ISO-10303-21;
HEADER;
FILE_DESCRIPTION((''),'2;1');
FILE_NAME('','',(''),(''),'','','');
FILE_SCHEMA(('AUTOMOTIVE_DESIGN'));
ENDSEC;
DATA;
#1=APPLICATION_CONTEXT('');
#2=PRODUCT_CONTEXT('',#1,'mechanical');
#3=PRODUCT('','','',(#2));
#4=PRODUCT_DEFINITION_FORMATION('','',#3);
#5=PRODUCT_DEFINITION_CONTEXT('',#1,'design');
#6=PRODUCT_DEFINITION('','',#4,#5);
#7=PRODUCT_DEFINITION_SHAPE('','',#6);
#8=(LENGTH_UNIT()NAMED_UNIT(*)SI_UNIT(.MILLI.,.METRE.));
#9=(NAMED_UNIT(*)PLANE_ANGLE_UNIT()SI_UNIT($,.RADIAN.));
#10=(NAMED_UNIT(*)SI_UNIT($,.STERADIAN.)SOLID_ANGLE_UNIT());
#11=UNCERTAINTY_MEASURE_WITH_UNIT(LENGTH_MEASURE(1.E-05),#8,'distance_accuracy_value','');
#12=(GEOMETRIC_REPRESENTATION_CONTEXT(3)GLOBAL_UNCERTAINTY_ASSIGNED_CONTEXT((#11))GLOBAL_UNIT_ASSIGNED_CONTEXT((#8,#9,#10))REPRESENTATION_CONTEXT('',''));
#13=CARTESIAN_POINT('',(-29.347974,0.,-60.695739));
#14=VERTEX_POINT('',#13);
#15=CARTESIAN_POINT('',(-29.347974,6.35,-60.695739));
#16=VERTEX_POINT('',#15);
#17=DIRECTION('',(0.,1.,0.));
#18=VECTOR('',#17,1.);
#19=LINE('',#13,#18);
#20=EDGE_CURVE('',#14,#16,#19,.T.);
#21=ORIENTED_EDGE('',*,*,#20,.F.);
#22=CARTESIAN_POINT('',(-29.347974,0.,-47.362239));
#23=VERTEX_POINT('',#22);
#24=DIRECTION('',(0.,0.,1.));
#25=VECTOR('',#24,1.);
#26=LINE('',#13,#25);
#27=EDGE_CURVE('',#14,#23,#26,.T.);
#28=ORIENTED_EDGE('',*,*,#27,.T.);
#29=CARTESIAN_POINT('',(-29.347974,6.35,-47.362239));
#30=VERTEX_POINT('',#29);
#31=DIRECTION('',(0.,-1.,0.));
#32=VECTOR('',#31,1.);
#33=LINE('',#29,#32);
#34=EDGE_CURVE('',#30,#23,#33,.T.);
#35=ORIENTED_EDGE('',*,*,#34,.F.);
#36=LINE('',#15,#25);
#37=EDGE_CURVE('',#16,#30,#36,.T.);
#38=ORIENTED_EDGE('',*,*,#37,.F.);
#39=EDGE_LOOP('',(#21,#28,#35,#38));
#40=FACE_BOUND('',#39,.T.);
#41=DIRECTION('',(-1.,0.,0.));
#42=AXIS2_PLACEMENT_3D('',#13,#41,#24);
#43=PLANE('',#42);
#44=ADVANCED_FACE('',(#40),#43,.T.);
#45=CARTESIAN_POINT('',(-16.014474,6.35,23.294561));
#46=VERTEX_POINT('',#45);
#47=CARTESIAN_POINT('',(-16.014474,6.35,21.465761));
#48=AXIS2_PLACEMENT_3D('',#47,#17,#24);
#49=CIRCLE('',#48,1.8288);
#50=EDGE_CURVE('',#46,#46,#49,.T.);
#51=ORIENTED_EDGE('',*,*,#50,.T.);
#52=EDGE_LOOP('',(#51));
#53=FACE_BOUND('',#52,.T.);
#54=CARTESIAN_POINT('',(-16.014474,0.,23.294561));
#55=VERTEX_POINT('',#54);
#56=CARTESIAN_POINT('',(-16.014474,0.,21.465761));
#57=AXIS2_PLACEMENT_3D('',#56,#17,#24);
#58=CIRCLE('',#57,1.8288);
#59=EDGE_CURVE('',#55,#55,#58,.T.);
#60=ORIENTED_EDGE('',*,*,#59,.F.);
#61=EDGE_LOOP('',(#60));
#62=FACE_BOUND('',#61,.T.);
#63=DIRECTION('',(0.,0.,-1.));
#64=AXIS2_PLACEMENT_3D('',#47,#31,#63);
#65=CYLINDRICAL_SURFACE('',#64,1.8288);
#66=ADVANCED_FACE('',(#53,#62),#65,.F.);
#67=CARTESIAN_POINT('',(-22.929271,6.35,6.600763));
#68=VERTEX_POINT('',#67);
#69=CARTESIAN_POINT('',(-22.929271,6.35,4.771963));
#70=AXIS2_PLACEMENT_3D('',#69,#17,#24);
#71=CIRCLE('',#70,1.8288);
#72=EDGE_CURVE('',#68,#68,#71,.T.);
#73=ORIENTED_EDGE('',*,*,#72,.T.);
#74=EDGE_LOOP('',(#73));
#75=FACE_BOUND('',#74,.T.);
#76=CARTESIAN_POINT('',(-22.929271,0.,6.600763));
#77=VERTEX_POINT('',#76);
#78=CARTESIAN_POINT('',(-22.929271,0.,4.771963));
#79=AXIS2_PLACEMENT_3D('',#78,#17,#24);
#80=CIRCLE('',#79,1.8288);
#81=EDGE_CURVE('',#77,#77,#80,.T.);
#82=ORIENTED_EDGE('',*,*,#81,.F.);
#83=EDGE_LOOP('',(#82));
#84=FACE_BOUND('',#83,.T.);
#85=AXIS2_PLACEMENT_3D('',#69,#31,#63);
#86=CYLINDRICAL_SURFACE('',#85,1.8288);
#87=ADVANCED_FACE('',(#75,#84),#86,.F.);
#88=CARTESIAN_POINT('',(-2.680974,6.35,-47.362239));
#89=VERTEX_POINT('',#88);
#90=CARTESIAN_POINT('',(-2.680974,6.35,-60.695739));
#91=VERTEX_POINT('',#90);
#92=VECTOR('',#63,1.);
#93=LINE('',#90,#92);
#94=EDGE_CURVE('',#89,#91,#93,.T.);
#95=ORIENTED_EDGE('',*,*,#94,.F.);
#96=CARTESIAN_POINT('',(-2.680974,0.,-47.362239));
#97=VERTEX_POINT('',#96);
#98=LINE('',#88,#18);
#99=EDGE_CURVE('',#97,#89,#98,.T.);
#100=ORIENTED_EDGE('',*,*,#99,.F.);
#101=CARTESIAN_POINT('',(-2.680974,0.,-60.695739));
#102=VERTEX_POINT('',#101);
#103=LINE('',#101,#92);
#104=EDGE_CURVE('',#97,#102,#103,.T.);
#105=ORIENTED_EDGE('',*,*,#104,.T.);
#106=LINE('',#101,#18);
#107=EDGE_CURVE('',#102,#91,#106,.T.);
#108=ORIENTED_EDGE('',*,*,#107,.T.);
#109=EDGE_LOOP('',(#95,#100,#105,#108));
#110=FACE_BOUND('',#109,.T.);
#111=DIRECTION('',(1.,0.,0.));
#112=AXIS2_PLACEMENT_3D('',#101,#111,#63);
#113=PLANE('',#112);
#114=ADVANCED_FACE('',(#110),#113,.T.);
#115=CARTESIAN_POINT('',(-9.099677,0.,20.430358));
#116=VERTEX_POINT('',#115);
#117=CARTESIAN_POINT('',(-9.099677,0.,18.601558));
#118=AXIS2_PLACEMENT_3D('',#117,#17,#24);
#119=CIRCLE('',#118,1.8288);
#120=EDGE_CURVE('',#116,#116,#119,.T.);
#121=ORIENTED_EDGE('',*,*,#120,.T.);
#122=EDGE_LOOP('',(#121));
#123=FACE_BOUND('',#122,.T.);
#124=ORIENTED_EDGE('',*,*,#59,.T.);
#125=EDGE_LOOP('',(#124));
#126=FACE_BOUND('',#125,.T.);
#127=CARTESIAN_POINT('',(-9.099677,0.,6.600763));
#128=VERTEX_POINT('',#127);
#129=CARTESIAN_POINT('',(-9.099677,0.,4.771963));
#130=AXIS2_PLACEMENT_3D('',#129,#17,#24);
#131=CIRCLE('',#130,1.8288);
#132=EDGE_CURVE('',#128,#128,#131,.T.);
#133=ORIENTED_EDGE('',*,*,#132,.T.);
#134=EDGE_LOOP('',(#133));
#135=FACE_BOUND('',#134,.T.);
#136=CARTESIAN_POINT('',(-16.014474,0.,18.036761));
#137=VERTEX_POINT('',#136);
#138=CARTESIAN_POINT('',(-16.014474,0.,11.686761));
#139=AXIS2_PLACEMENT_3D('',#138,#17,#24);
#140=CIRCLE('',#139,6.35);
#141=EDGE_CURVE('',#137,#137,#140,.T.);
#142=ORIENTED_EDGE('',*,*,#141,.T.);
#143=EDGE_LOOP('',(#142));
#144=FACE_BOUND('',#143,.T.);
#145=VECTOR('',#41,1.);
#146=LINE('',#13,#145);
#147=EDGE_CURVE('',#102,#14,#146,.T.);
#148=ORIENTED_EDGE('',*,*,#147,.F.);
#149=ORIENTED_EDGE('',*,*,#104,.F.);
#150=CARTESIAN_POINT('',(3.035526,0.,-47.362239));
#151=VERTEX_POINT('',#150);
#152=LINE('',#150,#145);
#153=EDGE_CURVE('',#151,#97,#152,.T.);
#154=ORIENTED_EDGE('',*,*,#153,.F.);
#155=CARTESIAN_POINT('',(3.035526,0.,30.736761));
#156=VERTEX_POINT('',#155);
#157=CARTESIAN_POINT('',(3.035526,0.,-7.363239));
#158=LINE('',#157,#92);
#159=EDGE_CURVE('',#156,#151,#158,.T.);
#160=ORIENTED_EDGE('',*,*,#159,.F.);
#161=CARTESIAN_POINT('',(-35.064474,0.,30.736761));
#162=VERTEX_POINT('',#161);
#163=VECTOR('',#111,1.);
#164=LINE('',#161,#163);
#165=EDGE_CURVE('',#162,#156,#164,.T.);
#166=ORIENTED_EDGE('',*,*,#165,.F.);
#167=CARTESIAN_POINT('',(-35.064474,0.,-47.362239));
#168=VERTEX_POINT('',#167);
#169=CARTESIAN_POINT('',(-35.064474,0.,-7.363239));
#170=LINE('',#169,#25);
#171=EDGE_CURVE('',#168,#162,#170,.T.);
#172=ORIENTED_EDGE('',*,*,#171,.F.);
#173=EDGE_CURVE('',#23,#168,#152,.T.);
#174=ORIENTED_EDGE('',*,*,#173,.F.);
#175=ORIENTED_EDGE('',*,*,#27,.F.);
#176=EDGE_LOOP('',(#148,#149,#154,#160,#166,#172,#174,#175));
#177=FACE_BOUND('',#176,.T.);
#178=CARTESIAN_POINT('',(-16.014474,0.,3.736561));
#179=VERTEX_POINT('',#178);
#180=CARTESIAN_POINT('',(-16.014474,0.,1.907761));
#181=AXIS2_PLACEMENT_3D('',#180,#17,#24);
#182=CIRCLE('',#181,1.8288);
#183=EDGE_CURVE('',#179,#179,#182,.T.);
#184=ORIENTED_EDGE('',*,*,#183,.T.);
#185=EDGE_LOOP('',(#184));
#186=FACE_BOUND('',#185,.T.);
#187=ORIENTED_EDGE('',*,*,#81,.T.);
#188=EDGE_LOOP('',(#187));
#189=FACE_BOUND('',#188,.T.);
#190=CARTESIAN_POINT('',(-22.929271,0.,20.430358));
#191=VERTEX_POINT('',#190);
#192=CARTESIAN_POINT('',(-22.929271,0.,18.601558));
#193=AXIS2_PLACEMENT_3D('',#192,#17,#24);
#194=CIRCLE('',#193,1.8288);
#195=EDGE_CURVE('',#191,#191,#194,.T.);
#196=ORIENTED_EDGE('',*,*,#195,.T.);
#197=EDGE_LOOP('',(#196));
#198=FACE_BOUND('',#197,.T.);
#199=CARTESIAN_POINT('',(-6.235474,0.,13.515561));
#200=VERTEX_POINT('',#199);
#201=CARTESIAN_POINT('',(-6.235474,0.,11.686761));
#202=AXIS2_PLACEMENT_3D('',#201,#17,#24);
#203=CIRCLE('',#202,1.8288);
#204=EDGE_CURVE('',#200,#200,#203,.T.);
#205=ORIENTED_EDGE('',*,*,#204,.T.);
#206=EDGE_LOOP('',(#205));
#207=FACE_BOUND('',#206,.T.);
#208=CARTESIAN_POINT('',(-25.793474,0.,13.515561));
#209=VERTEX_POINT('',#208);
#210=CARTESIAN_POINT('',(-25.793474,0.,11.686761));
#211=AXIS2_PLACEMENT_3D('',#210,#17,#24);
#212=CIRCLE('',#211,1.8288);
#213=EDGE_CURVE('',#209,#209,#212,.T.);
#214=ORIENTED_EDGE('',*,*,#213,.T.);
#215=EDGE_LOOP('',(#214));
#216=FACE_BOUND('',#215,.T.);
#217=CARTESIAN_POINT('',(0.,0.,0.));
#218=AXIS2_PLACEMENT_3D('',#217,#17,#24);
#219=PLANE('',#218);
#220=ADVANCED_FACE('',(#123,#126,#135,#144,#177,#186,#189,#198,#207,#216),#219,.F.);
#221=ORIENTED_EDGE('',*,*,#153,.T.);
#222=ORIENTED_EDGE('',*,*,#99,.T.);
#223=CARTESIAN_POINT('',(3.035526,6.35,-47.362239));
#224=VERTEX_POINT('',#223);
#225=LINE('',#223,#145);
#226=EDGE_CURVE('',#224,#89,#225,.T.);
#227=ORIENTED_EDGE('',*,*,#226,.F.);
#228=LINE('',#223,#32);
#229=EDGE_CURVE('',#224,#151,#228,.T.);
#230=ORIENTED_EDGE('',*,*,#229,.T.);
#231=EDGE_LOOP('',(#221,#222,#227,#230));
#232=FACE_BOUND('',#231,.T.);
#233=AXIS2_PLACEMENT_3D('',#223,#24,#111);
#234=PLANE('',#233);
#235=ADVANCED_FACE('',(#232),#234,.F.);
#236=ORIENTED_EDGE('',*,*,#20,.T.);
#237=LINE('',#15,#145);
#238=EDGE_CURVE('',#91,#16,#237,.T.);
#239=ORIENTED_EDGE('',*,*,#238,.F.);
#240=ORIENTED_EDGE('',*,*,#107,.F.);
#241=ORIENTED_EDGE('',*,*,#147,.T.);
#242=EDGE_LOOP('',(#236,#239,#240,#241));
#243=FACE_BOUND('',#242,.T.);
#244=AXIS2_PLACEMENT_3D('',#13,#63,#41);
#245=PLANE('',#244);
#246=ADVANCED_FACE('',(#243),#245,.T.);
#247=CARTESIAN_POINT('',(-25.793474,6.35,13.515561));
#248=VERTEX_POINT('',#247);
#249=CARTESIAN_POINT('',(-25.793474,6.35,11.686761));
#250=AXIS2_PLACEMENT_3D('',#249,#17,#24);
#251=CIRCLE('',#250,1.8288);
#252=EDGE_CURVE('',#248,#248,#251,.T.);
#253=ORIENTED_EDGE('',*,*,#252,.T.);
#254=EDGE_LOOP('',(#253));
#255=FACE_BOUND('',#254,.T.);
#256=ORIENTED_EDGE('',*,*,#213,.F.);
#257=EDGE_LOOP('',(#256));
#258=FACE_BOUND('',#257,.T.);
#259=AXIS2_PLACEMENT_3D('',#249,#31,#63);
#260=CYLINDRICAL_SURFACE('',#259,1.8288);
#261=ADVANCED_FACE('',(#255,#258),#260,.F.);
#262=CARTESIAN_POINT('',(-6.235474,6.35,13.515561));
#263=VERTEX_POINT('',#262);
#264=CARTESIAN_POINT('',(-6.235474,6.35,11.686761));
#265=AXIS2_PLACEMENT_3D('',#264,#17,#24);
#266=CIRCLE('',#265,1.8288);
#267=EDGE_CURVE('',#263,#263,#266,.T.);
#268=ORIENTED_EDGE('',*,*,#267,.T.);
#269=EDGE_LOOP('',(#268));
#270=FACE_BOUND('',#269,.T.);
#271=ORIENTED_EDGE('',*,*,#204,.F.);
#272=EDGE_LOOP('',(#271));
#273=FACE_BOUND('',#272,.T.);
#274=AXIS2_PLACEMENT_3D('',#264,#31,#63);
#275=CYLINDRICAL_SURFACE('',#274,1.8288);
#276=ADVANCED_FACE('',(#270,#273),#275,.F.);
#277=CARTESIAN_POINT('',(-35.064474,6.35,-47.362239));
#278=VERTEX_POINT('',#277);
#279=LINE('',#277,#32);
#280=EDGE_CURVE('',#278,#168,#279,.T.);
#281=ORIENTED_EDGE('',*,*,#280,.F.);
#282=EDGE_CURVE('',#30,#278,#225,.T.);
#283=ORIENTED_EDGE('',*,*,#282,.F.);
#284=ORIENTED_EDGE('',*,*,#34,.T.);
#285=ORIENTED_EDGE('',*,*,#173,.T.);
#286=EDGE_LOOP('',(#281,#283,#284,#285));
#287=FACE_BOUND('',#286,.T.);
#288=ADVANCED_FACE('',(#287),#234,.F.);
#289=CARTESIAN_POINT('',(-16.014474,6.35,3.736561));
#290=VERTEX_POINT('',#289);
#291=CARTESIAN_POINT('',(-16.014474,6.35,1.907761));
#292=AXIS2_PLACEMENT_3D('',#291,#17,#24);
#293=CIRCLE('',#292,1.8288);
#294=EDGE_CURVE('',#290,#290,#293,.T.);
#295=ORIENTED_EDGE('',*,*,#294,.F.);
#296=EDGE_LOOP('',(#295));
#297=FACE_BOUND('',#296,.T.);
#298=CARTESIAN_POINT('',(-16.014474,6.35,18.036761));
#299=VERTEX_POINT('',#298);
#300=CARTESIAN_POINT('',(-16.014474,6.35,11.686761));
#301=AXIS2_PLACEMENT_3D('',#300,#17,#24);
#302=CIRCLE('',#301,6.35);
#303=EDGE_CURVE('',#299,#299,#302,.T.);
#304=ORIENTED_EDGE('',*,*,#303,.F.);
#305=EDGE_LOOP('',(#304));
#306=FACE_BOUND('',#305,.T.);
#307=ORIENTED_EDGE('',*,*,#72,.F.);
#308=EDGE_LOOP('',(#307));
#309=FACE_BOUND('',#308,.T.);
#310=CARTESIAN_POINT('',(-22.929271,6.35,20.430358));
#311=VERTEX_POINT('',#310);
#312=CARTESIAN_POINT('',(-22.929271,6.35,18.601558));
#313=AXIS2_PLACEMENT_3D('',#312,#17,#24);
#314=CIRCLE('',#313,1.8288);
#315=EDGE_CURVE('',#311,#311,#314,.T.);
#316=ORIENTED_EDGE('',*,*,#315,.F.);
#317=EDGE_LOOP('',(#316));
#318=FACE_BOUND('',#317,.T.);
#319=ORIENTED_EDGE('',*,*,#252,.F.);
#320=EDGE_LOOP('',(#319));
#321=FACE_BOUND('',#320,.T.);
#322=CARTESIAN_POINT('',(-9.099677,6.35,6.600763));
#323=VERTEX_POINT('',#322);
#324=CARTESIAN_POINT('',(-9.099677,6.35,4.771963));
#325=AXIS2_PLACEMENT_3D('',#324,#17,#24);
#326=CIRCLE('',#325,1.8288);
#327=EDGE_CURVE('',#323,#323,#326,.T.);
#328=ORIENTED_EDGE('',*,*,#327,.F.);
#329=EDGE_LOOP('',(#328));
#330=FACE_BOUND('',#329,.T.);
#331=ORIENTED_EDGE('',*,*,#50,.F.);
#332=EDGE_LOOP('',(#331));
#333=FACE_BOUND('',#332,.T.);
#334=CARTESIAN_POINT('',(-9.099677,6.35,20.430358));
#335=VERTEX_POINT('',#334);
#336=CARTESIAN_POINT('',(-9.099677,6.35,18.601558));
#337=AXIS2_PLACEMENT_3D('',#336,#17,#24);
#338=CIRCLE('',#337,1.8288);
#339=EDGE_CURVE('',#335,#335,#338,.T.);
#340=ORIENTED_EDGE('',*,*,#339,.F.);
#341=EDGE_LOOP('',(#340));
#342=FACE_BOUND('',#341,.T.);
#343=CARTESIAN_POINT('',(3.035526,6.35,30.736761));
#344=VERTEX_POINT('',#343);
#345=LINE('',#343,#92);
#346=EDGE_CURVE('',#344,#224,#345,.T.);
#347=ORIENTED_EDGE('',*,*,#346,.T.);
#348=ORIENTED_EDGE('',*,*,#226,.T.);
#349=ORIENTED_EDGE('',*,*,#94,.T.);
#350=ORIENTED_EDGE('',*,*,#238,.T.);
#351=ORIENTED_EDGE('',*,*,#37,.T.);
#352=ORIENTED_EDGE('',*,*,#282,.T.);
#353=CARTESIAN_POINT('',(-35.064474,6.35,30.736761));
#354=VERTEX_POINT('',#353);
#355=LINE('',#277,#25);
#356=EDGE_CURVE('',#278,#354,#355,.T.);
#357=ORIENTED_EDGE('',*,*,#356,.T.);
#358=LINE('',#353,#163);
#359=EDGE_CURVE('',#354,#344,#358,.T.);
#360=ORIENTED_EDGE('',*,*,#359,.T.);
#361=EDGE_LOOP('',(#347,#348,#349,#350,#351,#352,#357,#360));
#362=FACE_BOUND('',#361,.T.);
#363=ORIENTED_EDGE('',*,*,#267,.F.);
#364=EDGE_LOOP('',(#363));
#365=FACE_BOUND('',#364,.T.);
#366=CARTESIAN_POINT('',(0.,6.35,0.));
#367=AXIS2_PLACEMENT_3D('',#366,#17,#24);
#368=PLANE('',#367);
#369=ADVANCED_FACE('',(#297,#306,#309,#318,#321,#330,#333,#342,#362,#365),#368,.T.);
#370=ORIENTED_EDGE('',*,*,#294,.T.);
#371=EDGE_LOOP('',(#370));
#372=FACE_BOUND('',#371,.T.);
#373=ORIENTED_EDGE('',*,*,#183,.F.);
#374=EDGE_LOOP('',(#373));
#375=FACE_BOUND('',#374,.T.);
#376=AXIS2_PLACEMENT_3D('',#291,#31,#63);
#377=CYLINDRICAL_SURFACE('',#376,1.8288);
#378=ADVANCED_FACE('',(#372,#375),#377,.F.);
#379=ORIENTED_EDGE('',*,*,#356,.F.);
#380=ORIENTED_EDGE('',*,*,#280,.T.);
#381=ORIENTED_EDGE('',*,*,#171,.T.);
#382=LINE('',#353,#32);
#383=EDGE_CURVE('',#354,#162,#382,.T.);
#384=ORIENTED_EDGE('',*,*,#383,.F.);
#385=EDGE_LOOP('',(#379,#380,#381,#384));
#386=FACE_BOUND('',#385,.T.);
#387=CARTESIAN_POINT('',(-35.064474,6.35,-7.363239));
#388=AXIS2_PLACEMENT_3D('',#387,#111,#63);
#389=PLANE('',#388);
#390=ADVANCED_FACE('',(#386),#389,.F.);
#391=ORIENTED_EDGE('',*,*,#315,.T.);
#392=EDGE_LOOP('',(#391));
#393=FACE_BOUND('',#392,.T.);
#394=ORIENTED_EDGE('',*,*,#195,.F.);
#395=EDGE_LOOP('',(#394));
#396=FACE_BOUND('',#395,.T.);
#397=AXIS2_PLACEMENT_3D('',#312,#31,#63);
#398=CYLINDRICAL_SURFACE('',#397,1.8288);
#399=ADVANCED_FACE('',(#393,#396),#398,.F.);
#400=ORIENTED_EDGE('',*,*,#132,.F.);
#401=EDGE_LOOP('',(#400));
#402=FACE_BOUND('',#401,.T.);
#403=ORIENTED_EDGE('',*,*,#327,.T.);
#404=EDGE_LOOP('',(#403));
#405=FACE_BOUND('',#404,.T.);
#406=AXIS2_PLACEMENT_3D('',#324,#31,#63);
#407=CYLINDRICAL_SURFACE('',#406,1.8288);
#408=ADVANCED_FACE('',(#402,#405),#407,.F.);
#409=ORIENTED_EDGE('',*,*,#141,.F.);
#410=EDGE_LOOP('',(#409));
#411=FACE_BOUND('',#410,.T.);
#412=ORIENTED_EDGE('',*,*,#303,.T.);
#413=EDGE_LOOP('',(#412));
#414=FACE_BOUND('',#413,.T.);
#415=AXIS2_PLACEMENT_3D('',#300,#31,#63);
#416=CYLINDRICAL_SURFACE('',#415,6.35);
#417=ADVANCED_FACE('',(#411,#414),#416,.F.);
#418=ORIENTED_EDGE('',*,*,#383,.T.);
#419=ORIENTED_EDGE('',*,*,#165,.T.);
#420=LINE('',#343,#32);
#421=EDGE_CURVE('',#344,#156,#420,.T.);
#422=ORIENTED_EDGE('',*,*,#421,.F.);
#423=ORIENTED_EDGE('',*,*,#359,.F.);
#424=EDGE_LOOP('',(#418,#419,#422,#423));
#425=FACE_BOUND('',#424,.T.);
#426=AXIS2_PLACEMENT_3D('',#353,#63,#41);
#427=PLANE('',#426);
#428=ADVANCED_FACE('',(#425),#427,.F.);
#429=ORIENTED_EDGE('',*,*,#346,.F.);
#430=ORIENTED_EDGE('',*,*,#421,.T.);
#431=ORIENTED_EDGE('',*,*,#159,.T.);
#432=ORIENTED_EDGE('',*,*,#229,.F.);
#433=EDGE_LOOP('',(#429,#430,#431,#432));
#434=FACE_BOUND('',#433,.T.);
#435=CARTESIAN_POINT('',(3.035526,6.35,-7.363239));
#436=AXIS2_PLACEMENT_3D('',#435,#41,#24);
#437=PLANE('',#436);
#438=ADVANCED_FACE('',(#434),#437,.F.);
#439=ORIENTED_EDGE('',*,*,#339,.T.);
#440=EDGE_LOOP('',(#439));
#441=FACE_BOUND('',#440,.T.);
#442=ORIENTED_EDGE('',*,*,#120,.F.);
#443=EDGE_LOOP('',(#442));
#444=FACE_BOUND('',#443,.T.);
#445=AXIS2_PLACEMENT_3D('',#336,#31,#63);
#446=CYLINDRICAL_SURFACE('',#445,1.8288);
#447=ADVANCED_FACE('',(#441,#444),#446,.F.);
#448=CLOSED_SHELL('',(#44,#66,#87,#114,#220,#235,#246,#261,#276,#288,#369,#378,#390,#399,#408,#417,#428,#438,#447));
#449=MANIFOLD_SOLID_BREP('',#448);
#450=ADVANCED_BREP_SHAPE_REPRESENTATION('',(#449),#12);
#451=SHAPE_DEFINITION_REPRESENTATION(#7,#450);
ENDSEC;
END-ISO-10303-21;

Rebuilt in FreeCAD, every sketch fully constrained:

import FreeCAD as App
import Part
import Sketcher

V = App.Vector
Q = App.Units.Quantity


def add_polygon(sketch, points):
    """Adds a closed chain of lines whose ends are joined by coincident constraints."""
    first, n = sketch.GeometryCount, len(points)
    for a, b in zip(points, points[1:] + points[:1]):
        sketch.addGeometry(Part.LineSegment(App.Vector(*a, 0), App.Vector(*b, 0)), False)
    for i in range(n):
        sketch.addConstraint(Sketcher.Constraint("Coincident", first + i, 2, first + (i + 1) % n, 1))

doc = App.newDocument("Part")
params = doc.addObject("Spreadsheet::Sheet", "Params")
for row, (alias, value) in enumerate([
    ("sketch1_diameter", "0.5 in"),
    ("sketch1_diameter2", "0.144 in"),
    ("sketch1_width", "1.5 in"),
    ("pad1_length", "0.25 in"),
    ("pad2_length", "0.25 in"),
], start=1):
    params.set(f"A{row}", alias)
    params.set(f"B{row}", "=" + value)
    params.setAlias(f"B{row}", alias)

body = doc.addObject("PartDesign::Body", "Body")

sketch1 = body.newObject("Sketcher::SketchObject", "Sketch")
sketch1.AttachmentSupport = (doc.getObject("XZ_Plane"), [""])
sketch1.MapMode = "FlatFace"
add_polygon(sketch1, [(-35.064474, -47.362239), (-35.064474, 30.736761), (3.035526, 30.736761), (3.035526, -47.362239)])
sketch1.addGeometry(Part.Circle(V(-22.929271, 18.601558, 0), V(0, 0, 1), 1.8288), False)
sketch1.addGeometry(Part.Circle(V(-16.014474, 21.465761, 0), V(0, 0, 1), 1.8288), False)
sketch1.addGeometry(Part.Circle(V(-9.099677, 18.601558, 0), V(0, 0, 1), 1.8288), False)
sketch1.addGeometry(Part.Circle(V(-25.793474, 11.686761, 0), V(0, 0, 1), 1.8288), False)
sketch1.addGeometry(Part.Circle(V(-22.929271, 4.771963, 0), V(0, 0, 1), 1.8288), False)
sketch1.addGeometry(Part.Circle(V(-16.014474, 11.686761, 0), V(0, 0, 1), 6.35), False)
sketch1.addGeometry(Part.Circle(V(-6.235474, 11.686761, 0), V(0, 0, 1), 1.8288), False)
sketch1.addGeometry(Part.Circle(V(-16.014474, 1.907761, 0), V(0, 0, 1), 1.8288), False)
sketch1.addGeometry(Part.Circle(V(-9.099677, 4.771963, 0), V(0, 0, 1), 1.8288), False)
sketch1.addConstraint(Sketcher.Constraint("Vertical", 0))
sketch1.addConstraint(Sketcher.Constraint("Horizontal", 1))
sketch1.addConstraint(Sketcher.Constraint("Vertical", 2))
sketch1.addConstraint(Sketcher.Constraint("Horizontal", 3))
sketch1.addConstraint(Sketcher.Constraint("Equal", 4, 5))
sketch1.addConstraint(Sketcher.Constraint("Equal", 5, 6))
sketch1.addConstraint(Sketcher.Constraint("Equal", 6, 7))
sketch1.addConstraint(Sketcher.Constraint("Equal", 7, 8))
sketch1.addConstraint(Sketcher.Constraint("Equal", 8, 10))
sketch1.addConstraint(Sketcher.Constraint("Equal", 10, 11))
sketch1.addConstraint(Sketcher.Constraint("Equal", 11, 12))
sketch1.addConstraint(Sketcher.Constraint("Horizontal", 4, 3, 6, 3))
sketch1.addConstraint(Sketcher.Constraint("Horizontal", 7, 3, 9, 3))
sketch1.addConstraint(Sketcher.Constraint("Horizontal", 9, 3, 10, 3))
sketch1.addConstraint(Sketcher.Constraint("Horizontal", 8, 3, 12, 3))
sketch1.addConstraint(Sketcher.Constraint("Vertical", 4, 3, 8, 3))
sketch1.addConstraint(Sketcher.Constraint("Vertical", 5, 3, 9, 3))
sketch1.addConstraint(Sketcher.Constraint("Vertical", 9, 3, 11, 3))
sketch1.addConstraint(Sketcher.Constraint("Vertical", 6, 3, 12, 3))
sketch1.addConstraint(Sketcher.Constraint("Diameter", 9, Q("0.5 in")))
sketch1.addConstraint(Sketcher.Constraint("Diameter", 4, Q("0.144 in")))
sketch1.addConstraint(Sketcher.Constraint("DistanceX", 1, 1, 1, 2, Q("1.5 in")))
sketch1.addConstraint(Sketcher.Constraint("DistanceX", 0, 2, 5, 3, Q("0.75 in")))
sketch1.addConstraint(Sketcher.Constraint("DistanceY", 7, 3, 0, 2, Q("0.75 in")))
sketch1.addConstraint(Sketcher.Constraint("DistanceX", 7, 3, 5, 3, Q("0.385 in")))
sketch1.addConstraint(Sketcher.Constraint("DistanceY", 7, 3, 5, 3, Q("0.385 in")))
sketch1.addConstraint(Sketcher.Constraint("DistanceX", 9, 3, 10, 3, Q("0.385 in")))
sketch1.addConstraint(Sketcher.Constraint("DistanceY", 11, 3, 9, 3, Q("0.385 in")))
sketch1.addConstraint(Sketcher.Constraint("DistanceY", 0, 1, 0, 2, Q("78.099 mm")))
sketch1.addConstraint(Sketcher.Constraint("DistanceX", 4, 3, -1, 1, Q("22.929271 mm")))
sketch1.addConstraint(Sketcher.Constraint("DistanceY", -1, 1, 5, 3, Q("21.465761 mm")))
sketch1.addConstraint(Sketcher.Constraint("DistanceY", -1, 1, 4, 3, Q("18.601558 mm")))
sketch1.addConstraint(Sketcher.Constraint("DistanceX", 5, 3, -1, 1, Q("16.014474 mm")))
sketch1.addConstraint(Sketcher.Constraint("DistanceX", 6, 3, -1, 1, Q("9.099677 mm")))
sketch1.addConstraint(Sketcher.Constraint("DistanceY", -1, 1, 8, 3, Q("4.771963 mm")))
sketch1.setExpression("Constraints[23]", "Params.sketch1_diameter")
sketch1.setExpression("Constraints[24]", "Params.sketch1_diameter2")
sketch1.setExpression("Constraints[25]", "Params.sketch1_width")
pad1 = body.newObject("PartDesign::Pad", "Pad")
pad1.Profile = sketch1
pad1.setExpression("Length", "Params.pad1_length")
pad1.Reversed = True

sketch2 = body.newObject("Sketcher::SketchObject", "Sketch001")
sketch2.AttachmentSupport = (doc.getObject("XZ_Plane"), [""])
sketch2.MapMode = "FlatFace"
sketch2.AttachmentOffset = App.Placement(V(0, 0, -0.25 * 25.4), App.Rotation())
add_polygon(sketch2, [(-29.347974, -60.695739), (-29.347974, -34.028739), (-2.680974, -34.028739), (-2.680974, -60.695739)])
sketch2.addConstraint(Sketcher.Constraint("Vertical", 0))
sketch2.addConstraint(Sketcher.Constraint("Horizontal", 1))
sketch2.addConstraint(Sketcher.Constraint("Vertical", 2))
sketch2.addConstraint(Sketcher.Constraint("Horizontal", 3))
sketch2.addConstraint(Sketcher.Constraint("Equal", 3, 0))
sketch2.addConstraint(Sketcher.Constraint("DistanceX", 1, 1, 1, 2, Q("26.667 mm")))
sketch2.addConstraint(Sketcher.Constraint("DistanceY", 0, 2, -1, 1, Q("34.028739 mm")))
sketch2.addConstraint(Sketcher.Constraint("DistanceX", 0, 2, -1, 1, Q("29.347974 mm")))
pad2 = body.newObject("PartDesign::Pad", "Pad001")
pad2.Profile = sketch2
pad2.setExpression("Length", "Params.pad2_length")

doc.recompute()
